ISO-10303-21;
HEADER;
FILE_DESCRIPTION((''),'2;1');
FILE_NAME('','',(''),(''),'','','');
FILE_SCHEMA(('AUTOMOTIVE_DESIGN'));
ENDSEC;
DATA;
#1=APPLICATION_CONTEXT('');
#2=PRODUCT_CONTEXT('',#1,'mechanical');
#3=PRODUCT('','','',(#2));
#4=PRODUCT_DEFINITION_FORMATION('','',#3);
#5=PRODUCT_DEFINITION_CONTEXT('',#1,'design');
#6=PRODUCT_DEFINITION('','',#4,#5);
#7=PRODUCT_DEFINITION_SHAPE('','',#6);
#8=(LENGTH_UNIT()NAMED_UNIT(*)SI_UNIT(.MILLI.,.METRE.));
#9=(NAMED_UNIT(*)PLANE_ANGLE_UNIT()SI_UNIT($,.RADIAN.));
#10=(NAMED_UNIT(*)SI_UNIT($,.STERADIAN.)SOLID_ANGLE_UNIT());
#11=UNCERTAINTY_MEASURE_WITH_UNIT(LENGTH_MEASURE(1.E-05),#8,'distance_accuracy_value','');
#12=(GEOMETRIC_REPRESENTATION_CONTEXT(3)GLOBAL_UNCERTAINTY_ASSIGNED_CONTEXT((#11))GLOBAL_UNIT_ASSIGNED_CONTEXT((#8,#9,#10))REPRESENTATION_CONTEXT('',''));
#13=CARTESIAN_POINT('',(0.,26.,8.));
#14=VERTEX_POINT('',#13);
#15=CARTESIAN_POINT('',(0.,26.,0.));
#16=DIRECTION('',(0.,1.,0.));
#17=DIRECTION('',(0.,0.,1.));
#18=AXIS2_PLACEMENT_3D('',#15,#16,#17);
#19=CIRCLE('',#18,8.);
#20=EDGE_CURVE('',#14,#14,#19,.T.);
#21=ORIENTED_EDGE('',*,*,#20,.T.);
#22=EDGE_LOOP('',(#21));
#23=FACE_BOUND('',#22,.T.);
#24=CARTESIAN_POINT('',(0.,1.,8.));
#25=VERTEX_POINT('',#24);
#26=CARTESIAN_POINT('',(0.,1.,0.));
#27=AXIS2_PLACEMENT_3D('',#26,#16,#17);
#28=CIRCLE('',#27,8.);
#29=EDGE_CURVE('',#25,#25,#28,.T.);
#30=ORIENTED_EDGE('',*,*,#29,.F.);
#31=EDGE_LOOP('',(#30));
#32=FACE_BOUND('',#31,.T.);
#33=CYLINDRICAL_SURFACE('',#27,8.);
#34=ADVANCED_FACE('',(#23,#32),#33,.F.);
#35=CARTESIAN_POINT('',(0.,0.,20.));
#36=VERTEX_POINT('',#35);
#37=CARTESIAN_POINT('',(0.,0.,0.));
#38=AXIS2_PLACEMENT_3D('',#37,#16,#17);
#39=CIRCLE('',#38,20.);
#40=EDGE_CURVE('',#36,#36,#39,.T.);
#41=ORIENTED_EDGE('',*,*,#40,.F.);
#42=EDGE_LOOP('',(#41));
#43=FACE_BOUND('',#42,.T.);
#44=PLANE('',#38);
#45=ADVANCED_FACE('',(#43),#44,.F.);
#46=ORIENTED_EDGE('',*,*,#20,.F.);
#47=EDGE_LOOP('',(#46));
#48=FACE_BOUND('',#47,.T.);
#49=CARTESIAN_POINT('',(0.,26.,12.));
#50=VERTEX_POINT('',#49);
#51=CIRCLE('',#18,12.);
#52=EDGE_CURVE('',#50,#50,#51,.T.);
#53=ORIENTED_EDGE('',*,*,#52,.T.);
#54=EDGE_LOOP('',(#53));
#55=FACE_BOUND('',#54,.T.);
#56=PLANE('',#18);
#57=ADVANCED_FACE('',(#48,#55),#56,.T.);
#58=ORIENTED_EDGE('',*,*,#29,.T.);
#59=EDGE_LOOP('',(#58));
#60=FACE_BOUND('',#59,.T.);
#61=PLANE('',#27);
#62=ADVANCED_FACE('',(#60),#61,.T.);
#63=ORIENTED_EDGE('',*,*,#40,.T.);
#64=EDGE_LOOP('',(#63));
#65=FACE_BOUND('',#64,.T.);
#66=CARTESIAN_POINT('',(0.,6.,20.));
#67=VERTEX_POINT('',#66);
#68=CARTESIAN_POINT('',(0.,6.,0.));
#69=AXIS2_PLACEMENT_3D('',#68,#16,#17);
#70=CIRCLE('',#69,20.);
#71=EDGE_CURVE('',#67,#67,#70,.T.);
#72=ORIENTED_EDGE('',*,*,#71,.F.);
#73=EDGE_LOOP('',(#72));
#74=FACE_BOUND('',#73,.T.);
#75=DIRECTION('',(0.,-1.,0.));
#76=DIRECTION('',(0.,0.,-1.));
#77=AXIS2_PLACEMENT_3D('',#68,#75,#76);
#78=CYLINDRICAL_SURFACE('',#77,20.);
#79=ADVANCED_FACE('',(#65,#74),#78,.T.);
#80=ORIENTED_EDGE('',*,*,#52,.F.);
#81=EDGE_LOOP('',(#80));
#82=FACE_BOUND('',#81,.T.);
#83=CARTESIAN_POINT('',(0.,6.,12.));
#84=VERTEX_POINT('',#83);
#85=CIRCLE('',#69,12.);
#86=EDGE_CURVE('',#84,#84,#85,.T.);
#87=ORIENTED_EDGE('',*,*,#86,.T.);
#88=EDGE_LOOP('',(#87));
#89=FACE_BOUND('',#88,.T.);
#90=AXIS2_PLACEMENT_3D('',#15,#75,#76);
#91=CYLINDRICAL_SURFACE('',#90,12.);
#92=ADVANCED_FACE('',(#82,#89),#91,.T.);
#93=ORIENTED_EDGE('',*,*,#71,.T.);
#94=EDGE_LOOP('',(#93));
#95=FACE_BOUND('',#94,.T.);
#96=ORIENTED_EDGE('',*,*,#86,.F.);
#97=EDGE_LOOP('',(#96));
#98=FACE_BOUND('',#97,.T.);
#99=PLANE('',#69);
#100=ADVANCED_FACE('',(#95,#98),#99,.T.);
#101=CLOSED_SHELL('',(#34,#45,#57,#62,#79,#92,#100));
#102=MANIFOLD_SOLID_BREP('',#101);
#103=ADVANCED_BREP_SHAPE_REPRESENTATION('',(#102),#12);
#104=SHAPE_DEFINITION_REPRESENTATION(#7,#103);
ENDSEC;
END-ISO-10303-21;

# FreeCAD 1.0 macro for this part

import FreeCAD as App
import Part
import Sketcher

V = App.Vector

doc = App.newDocument("Part")
body = doc.addObject("PartDesign::Body", "Body")

# Sketch on XZ plane
sketch1 = doc.addObject("Sketcher::SketchObject", "Sketch")
body.addObject(sketch1)
sketch1.AttachmentSupport = (doc.XZ_Plane, [""])
sketch1.MapMode = "FlatFace"
sketch1.addGeometry(Part.Circle(V(0, 0, 0), V(0, 0, 1), 20), False)
sketch1.addConstraint([
    Sketcher.Constraint("Coincident", 0, 3, -1, 1),
    Sketcher.Constraint("Diameter", 0, 40.0),
])
pad1 = doc.addObject("PartDesign::Pad", "Pad")
body.addObject(pad1)
pad1.Profile = sketch1
pad1.Length = 6
pad1.Reversed = True

# Sketch on XZ plane
sketch2 = doc.addObject("Sketcher::SketchObject", "Sketch001")
body.addObject(sketch2)
sketch2.AttachmentSupport = (doc.XZ_Plane, [""])
sketch2.MapMode = "FlatFace"
sketch2.AttachmentOffset = App.Placement(V(0, 0, -6), App.Rotation())
sketch2.addGeometry(Part.Circle(V(0, 0, 0), V(0, 0, 1), 12), False)
sketch2.addConstraint([
    Sketcher.Constraint("Coincident", 0, 3, -1, 1),
    Sketcher.Constraint("Diameter", 0, 24.0),
])
pad2 = doc.addObject("PartDesign::Pad", "Pad001")
body.addObject(pad2)
pad2.Profile = sketch2
pad2.Length = 20
pad2.Reversed = True

# Sketch on XZ plane
sketch3 = doc.addObject("Sketcher::SketchObject", "Sketch002")
body.addObject(sketch3)
sketch3.AttachmentSupport = (doc.XZ_Plane, [""])
sketch3.MapMode = "FlatFace"
sketch3.AttachmentOffset = App.Placement(V(0, 0, -26), App.Rotation())
sketch3.addGeometry(Part.Circle(V(0, 0, 0), V(0, 0, 1), 8), False)
sketch3.addConstraint([
    Sketcher.Constraint("Coincident", 0, 3, -1, 1),
    Sketcher.Constraint("Diameter", 0, 16.0),
])
pocket1 = doc.addObject("PartDesign::Pocket", "Pocket")
body.addObject(pocket1)
pocket1.Profile = sketch3
pocket1.Length = 25
pocket1.Reversed = True

doc.recompute()
